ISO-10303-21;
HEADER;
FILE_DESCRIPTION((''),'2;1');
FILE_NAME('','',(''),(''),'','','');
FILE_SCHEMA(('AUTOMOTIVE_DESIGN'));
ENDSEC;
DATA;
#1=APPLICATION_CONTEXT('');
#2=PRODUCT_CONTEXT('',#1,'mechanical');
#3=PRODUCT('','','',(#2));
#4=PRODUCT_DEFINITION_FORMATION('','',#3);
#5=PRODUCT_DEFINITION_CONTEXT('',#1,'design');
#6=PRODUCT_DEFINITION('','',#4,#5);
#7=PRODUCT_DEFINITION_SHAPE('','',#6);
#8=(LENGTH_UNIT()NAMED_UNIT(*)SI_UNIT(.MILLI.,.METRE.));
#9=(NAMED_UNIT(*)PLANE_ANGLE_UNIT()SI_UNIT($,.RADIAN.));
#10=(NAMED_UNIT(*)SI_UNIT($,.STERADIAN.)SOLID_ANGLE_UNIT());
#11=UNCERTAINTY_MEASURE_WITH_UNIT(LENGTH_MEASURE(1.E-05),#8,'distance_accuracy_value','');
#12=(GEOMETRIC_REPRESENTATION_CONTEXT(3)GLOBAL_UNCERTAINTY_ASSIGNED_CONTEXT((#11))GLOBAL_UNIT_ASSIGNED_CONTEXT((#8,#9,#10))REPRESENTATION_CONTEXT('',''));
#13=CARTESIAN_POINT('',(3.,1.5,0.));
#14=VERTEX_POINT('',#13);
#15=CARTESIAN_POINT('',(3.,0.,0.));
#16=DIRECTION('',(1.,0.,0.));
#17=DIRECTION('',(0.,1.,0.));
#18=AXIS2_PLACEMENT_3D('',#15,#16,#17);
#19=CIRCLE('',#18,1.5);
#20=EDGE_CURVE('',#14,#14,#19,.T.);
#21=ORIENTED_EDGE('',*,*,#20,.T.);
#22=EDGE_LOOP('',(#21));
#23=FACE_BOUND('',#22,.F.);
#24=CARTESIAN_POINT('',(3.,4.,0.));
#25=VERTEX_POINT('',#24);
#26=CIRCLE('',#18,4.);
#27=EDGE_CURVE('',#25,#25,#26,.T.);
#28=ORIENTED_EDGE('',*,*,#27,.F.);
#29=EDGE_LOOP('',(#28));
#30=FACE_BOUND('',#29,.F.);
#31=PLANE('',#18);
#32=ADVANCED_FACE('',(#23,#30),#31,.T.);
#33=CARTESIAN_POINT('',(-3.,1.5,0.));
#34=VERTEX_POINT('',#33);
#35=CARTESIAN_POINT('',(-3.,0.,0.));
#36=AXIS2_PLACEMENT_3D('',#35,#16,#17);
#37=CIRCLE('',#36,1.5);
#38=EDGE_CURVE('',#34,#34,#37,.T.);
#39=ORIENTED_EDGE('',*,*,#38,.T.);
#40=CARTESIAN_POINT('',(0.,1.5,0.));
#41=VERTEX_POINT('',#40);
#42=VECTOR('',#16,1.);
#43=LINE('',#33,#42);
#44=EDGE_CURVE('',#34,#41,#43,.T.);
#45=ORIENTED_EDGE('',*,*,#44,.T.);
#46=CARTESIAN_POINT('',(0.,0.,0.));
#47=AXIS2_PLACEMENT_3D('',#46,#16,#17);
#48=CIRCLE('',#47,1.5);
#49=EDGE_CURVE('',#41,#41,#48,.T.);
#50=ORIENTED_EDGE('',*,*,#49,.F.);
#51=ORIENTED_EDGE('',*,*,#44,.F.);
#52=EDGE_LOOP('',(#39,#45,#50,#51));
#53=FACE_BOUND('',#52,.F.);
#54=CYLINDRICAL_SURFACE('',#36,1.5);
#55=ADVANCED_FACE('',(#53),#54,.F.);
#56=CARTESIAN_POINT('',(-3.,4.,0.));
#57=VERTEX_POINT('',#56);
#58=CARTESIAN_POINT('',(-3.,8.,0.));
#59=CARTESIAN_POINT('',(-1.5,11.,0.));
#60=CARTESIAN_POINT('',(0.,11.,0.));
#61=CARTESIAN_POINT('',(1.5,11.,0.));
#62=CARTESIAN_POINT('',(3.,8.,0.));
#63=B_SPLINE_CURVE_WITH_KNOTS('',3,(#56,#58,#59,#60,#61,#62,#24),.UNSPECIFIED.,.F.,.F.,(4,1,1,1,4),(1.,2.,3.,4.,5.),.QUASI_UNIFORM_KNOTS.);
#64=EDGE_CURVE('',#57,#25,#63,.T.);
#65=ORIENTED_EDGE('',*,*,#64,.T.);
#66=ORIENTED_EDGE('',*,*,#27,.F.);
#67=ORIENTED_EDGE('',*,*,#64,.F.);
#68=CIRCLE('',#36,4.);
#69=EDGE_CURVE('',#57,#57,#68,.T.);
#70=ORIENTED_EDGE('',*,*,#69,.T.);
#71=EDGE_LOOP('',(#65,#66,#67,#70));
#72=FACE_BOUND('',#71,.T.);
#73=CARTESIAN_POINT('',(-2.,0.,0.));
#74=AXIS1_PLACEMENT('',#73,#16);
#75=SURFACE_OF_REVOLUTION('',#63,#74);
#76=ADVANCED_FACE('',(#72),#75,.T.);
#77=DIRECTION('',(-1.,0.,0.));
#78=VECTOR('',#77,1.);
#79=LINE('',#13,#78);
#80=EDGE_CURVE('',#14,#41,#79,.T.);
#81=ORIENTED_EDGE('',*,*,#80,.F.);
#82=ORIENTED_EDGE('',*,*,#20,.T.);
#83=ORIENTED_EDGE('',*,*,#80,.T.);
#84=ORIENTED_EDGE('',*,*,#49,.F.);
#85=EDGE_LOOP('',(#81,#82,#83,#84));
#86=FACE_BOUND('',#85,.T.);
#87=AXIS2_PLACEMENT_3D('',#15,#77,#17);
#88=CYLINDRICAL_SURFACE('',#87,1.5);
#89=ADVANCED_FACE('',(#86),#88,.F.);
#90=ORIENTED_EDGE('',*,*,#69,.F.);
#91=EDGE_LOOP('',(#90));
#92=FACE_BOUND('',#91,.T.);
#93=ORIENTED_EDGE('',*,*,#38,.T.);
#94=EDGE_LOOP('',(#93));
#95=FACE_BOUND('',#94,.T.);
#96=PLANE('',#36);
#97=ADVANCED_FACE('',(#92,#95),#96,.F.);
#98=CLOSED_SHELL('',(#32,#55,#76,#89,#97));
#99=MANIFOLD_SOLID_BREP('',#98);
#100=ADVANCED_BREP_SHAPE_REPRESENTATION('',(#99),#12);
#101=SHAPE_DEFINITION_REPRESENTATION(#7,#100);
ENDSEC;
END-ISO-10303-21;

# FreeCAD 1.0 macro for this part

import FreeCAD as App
import Part
import Sketcher
Q = App.Units.Quantity

doc = App.newDocument("Part")
body = doc.addObject("PartDesign::Body", "Body")

# Sketch on XY plane
sketch1 = body.newObject("Sketcher::SketchObject", "Sketch")
sketch1.AttachmentSupport = (doc.getObject("XY_Plane"), [""])
sketch1.MapMode = "FlatFace"
sketch1.addGeometry(Part.LineSegment(App.Vector(-3, 4, 0), App.Vector(-3, 1.5, 0)), False)
sketch1.addGeometry(Part.LineSegment(App.Vector(-3, 1.5, 0), App.Vector(3, 1.5, 0)), False)
sketch1.addGeometry(Part.LineSegment(App.Vector(3, 1.5, 0), App.Vector(3, 4, 0)), False)
sketch1.addGeometry(Part.BSplineCurve([App.Vector(-3, 4, 0), App.Vector(-3, 8, 0), App.Vector(-1.5, 11, 0), App.Vector(0, 11, 0), App.Vector(1.5, 11, 0), App.Vector(3, 8, 0), App.Vector(3, 4, 0)], [4, 1, 1, 1, 4], [1, 2, 3, 4, 5], False, 3, [1, 1, 1, 1, 1, 1, 1], False), False)
sketch1.addConstraint(Sketcher.Constraint("Block", 3))
sketch1.addConstraint(Sketcher.Constraint("Coincident", 0, 2, 1, 1))
sketch1.addConstraint(Sketcher.Constraint("Coincident", 1, 2, 2, 1))
sketch1.addConstraint(Sketcher.Constraint("Coincident", 2, 2, 3, 2))
sketch1.addConstraint(Sketcher.Constraint("Coincident", 3, 1, 0, 1))
sketch1.addConstraint(Sketcher.Constraint("Vertical", 0))
sketch1.addConstraint(Sketcher.Constraint("Horizontal", 1))
sketch1.addConstraint(Sketcher.Constraint("Vertical", 2))
sketch1.addConstraint(Sketcher.Constraint("DistanceY", 0, 2, 0, 1, Q("2.5 mm")))
revolution = body.newObject("PartDesign::Revolution", "Revolution")
revolution.Profile = sketch1
revolution.ReferenceAxis = (sketch1, ["H_Axis"])
revolution.Angle = 360

doc.recompute()
